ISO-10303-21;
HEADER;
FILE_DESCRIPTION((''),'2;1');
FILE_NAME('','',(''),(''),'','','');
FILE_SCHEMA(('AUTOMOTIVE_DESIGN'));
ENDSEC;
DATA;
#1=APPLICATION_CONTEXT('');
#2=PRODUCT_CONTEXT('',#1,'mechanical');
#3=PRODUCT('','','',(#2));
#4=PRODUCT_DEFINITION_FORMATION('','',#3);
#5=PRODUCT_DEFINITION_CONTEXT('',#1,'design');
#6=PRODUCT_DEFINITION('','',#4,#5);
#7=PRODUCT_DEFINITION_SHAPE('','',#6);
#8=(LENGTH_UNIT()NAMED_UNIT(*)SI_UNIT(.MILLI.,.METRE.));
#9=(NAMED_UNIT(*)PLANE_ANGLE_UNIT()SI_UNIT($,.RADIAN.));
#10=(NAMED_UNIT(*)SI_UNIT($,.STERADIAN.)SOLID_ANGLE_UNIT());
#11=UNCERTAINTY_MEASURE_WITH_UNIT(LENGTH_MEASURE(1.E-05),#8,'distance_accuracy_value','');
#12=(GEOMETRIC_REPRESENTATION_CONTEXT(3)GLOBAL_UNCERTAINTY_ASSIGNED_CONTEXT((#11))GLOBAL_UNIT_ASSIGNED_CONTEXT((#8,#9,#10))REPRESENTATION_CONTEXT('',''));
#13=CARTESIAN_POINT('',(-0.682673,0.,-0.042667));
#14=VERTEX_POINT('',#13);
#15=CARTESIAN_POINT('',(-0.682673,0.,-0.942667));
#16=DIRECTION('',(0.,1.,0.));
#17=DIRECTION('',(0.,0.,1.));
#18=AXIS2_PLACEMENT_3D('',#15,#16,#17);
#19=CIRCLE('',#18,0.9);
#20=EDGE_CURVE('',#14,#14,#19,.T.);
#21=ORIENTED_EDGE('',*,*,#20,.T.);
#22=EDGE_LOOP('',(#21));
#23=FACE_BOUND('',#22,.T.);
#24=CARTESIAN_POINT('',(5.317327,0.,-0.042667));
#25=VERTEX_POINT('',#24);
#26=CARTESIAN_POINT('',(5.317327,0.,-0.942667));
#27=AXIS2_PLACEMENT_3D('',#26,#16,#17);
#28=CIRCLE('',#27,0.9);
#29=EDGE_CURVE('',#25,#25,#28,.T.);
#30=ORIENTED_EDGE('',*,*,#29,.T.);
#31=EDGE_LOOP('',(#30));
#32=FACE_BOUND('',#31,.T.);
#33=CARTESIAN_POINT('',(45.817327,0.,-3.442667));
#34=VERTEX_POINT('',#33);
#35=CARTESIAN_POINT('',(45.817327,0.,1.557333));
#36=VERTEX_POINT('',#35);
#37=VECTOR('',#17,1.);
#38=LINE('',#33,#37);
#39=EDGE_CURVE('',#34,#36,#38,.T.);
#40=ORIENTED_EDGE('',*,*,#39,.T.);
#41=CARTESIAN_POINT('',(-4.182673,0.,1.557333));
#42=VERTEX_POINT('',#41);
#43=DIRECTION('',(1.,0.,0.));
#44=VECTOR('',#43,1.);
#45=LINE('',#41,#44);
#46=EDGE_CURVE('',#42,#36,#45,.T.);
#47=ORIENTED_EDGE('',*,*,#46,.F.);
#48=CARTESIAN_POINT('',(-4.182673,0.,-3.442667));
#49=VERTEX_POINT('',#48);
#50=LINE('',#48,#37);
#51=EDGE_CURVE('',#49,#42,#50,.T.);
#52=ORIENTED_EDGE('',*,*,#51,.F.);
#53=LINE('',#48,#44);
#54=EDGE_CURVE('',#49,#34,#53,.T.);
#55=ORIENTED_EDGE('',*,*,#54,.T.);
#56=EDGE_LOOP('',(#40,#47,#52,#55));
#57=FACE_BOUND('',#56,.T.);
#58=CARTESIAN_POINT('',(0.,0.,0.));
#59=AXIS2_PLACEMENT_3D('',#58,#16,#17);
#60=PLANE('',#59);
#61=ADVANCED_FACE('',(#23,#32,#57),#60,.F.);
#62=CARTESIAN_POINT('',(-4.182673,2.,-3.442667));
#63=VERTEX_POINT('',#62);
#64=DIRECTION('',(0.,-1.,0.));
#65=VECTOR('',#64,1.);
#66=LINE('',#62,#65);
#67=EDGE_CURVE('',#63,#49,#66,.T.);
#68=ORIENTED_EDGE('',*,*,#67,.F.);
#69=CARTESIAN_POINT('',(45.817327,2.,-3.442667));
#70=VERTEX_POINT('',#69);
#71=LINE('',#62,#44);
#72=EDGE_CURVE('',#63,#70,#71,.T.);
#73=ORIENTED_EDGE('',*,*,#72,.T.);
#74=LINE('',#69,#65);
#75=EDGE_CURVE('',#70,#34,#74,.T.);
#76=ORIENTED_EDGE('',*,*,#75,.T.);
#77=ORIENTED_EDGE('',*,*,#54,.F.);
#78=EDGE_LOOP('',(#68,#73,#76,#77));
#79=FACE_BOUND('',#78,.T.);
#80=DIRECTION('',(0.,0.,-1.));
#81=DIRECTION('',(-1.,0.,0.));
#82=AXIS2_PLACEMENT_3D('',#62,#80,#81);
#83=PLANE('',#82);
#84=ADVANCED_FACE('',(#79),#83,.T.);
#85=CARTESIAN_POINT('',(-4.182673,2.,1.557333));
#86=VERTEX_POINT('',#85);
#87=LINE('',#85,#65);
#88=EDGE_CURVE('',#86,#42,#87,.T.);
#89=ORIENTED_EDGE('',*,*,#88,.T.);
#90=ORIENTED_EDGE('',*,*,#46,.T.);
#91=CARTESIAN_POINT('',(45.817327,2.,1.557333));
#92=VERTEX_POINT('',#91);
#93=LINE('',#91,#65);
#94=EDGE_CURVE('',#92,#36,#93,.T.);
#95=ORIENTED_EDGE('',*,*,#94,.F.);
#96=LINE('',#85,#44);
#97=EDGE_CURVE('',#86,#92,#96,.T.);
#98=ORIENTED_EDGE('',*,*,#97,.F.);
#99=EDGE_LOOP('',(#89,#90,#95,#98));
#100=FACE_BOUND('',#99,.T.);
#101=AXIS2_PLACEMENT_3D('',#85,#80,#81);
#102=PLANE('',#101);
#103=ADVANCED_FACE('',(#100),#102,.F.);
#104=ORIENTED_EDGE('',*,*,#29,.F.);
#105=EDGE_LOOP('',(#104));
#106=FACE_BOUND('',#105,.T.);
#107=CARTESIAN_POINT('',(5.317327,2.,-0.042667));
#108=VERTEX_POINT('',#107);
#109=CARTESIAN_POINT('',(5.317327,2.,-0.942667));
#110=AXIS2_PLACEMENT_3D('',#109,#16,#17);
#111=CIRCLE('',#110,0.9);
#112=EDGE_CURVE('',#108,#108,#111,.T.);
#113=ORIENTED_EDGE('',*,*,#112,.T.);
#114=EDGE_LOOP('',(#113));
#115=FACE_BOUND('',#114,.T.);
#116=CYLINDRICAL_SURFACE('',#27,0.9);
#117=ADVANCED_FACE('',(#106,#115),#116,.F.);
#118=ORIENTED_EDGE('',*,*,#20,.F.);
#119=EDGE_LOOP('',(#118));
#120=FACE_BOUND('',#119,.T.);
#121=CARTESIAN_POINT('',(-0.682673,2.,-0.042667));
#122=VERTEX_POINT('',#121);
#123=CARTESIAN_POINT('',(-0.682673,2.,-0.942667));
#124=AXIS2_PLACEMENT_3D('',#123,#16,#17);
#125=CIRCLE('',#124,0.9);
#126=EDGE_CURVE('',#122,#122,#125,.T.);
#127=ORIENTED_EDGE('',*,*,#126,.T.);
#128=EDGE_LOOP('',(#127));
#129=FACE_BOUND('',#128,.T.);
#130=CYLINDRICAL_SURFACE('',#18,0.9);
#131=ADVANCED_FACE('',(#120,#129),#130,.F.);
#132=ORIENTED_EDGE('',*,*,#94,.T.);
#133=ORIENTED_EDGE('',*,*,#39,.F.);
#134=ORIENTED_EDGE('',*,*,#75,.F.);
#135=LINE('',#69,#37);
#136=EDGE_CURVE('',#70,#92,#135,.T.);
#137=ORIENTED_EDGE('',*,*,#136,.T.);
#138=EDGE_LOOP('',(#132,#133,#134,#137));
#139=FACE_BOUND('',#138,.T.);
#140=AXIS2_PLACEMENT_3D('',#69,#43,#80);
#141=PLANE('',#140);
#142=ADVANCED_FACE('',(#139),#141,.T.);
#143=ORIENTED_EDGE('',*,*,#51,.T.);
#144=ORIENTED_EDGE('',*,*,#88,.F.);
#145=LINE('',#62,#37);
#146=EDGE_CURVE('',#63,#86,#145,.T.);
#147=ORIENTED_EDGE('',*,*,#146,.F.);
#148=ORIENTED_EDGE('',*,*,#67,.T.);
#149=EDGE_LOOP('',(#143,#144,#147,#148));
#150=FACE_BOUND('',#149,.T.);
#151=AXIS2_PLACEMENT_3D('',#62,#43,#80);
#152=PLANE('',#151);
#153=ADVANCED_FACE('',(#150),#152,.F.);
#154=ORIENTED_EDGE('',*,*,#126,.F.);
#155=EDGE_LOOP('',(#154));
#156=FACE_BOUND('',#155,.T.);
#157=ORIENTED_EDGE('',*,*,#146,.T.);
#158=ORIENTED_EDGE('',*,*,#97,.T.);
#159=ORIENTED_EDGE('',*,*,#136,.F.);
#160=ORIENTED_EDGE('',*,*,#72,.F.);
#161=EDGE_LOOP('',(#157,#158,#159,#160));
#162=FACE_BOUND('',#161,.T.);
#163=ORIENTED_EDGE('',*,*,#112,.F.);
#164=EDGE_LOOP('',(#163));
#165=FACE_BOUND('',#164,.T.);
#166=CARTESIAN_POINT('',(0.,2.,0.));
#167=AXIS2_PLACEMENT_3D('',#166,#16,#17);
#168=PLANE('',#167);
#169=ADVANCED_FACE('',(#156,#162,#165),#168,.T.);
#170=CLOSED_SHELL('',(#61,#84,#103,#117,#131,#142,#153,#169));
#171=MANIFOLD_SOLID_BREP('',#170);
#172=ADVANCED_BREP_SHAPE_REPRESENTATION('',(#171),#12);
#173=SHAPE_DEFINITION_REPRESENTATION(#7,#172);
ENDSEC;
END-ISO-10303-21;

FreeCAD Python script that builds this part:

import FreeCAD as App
import Part
import Sketcher

V = App.Vector


def add_polygon(sketch, points):
    """Adds a closed chain of lines whose ends are joined by coincident constraints."""
    first, n = sketch.GeometryCount, len(points)
    for a, b in zip(points, points[1:] + points[:1]):
        sketch.addGeometry(Part.LineSegment(App.Vector(*a, 0), App.Vector(*b, 0)), False)
    for i in range(n):
        sketch.addConstraint(Sketcher.Constraint("Coincident", first + i, 2, first + (i + 1) % n, 1))

doc = App.newDocument("Part")
body = doc.addObject("PartDesign::Body", "Body")

sketch1 = body.newObject("Sketcher::SketchObject", "Sketch")
sketch1.AttachmentSupport = (doc.getObject("XZ_Plane"), [""])
sketch1.MapMode = "FlatFace"
add_polygon(sketch1, [(-4.182673, -3.442667), (-4.182673, 1.557333), (45.817327, 1.557333), (45.817327, -3.442667)])
sketch1.addConstraint([
    Sketcher.Constraint("Vertical", 0),
    Sketcher.Constraint("Horizontal", 1),
    Sketcher.Constraint("Vertical", 2),
    Sketcher.Constraint("Horizontal", 3),
    Sketcher.Constraint("DistanceX", 1, 1, 1, 2, 50.0),
    Sketcher.Constraint("DistanceY", 0, 1, 0, 2, 5.0),
    Sketcher.Constraint("DistanceX", 0, 2, -1, 1, 4.182673),
    Sketcher.Constraint("DistanceY", -1, 1, 0, 2, 1.557333),
])
pad1 = body.newObject("PartDesign::Pad", "Pad")
pad1.Profile = sketch1
pad1.Length = 2
pad1.Reversed = True

sketch2 = body.newObject("Sketcher::SketchObject", "Sketch001")
sketch2.AttachmentSupport = (doc.getObject("XZ_Plane"), [""])
sketch2.MapMode = "FlatFace"
sketch2.AttachmentOffset = App.Placement(V(0, 0, -2), App.Rotation())
sketch2.addGeometry([
    Part.Circle(V(-0.682673, -0.942667, 0), V(0, 0, 1), 0.9),
    Part.Circle(V(5.317327, -0.942667, 0), V(0, 0, 1), 0.9),
], False)
sketch2.addConstraint([
    Sketcher.Constraint("Equal", 0, 1),
    Sketcher.Constraint("Horizontal", 0, 3, 1, 3),
    Sketcher.Constraint("Diameter", 0, 1.8),
    Sketcher.Constraint("DistanceX", 0, 3, 1, 3, 6.0),
    Sketcher.Constraint("DistanceX", 0, 3, -1, 1, 0.682673),
    Sketcher.Constraint("DistanceY", 0, 3, -1, 1, 0.942667),
])
pocket1 = body.newObject("PartDesign::Pocket", "Pocket")
pocket1.Profile = sketch2
pocket1.Length = 2
pocket1.Reversed = True

doc.recompute()
